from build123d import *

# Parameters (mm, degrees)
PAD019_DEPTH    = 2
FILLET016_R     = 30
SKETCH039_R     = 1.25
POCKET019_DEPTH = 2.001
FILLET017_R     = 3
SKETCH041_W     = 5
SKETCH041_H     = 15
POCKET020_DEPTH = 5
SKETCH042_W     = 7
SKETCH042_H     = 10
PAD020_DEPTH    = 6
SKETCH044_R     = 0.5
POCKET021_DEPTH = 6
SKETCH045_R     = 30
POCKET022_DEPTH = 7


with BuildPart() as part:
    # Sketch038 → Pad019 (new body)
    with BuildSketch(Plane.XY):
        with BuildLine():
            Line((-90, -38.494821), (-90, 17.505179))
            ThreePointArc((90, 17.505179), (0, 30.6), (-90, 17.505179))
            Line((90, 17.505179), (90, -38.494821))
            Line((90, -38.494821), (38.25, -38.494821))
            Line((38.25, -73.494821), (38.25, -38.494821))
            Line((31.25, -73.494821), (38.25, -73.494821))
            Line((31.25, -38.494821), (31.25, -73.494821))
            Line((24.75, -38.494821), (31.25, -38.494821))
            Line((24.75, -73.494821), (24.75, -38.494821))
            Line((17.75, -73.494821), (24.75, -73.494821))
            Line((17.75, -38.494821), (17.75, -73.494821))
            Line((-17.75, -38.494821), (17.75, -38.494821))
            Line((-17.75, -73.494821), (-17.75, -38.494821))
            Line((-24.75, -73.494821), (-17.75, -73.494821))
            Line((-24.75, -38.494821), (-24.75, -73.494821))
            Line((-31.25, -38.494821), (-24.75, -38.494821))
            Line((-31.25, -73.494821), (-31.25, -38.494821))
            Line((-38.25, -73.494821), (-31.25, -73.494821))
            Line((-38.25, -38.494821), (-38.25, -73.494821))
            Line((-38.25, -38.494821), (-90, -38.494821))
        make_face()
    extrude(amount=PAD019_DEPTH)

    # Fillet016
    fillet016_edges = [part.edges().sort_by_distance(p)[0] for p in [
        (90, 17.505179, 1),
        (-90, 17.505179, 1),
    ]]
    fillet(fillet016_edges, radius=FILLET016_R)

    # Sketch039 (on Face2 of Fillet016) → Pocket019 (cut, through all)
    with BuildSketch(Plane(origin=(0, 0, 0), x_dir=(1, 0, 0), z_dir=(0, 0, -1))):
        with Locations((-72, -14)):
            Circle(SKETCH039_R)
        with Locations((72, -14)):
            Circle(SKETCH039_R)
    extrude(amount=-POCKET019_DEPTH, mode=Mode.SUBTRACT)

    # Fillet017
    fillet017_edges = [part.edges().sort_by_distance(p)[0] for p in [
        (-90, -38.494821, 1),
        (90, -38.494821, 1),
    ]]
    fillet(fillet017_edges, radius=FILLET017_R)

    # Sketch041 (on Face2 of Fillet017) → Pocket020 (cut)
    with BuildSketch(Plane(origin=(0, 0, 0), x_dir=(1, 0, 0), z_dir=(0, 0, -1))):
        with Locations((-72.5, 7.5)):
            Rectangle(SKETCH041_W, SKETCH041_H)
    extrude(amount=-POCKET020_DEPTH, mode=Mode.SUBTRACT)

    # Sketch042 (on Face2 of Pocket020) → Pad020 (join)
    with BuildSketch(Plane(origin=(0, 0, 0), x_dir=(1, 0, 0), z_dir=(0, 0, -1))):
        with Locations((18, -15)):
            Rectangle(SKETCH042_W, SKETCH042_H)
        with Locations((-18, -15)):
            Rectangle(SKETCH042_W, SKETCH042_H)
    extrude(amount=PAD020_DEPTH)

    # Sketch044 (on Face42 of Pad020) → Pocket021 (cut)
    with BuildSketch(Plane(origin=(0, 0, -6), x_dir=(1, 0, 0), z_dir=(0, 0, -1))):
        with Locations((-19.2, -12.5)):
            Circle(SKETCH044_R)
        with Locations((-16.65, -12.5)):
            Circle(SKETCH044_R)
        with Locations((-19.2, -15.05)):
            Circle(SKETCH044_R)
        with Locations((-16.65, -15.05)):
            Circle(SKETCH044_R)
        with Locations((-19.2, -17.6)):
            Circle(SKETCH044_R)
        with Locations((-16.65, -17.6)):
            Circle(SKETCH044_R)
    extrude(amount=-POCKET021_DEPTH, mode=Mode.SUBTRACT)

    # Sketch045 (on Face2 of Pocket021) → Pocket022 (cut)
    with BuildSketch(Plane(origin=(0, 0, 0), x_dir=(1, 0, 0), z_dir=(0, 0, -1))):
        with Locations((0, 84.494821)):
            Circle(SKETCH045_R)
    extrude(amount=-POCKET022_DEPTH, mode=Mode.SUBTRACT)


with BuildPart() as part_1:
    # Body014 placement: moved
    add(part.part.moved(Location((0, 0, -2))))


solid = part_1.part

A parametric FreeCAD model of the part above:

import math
import FreeCAD as App
import Part
import Sketcher

V = App.Vector


def edges_at(feature, points):
    """Names of the edges that pass closest to the given points."""
    edges = feature.Shape.Edges
    near = lambda p: min(range(len(edges)), key=lambda i: edges[i].distToShape(Part.Vertex(*p))[0])
    return sorted({f"Edge{near(p) + 1}" for p in points})

doc = App.newDocument("Part")
params = doc.addObject("Spreadsheet::Sheet", "Params")
for row, (alias, value) in enumerate([
    ("sketch1_width", "7 mm"),
    ("sketch1_height", "56 mm"),
    ("sketch1_height2", "35 mm"),
    ("sketch1_width2", "6.5 mm"),
    ("sketch1_width3", "35.5 mm"),
    ("pad1_length", "2 mm"),
    ("fillet_radius", "30 mm"),
    ("sketch2_diameter", "2.5 mm"),
    ("fillet2_radius", "3 mm"),
    ("sketch3_width", "5 mm"),
    ("sketch3_height", "15 mm"),
    ("pocket2_length", "5 mm"),
    ("sketch4_width", "7 mm"),
    ("sketch4_height", "10 mm"),
    ("pad2_length", "6 mm"),
    ("sketch5_diameter", "1 mm"),
    ("pocket3_length", "6 mm"),
    ("sketch6_diameter", "60 mm"),
    ("pocket4_length", "7 mm"),
], start=1):
    params.set(f"A{row}", alias)
    params.set(f"B{row}", "=" + value)
    params.setAlias(f"B{row}", alias)

body = doc.addObject("PartDesign::Body", "Body")

sketch1 = doc.addObject("Sketcher::SketchObject", "Sketch")
body.addObject(sketch1)
sketch1.AttachmentSupport = (doc.XY_Plane, [""])
sketch1.MapMode = "FlatFace"
sketch1.addGeometry([
    Part.LineSegment(V(-90, 18, 0), V(-90, -38, 0)),
    Part.LineSegment(V(-90, -38, 0), V(-38, -38, 0)),
    Part.LineSegment(V(-38, -38, 0), V(-38, -73, 0)),
    Part.LineSegment(V(-38, -73, 0), V(-31, -73, 0)),
    Part.LineSegment(V(-31, -73, 0), V(-31, -38, 0)),
    Part.LineSegment(V(-31, -38, 0), V(-25, -38, 0)),
    Part.LineSegment(V(-25, -38, 0), V(-25, -73, 0)),
    Part.LineSegment(V(-25, -73, 0), V(-18, -73, 0)),
    Part.LineSegment(V(-18, -73, 0), V(-18, -38, 0)),
    Part.LineSegment(V(-18, -38, 0), V(18, -38, 0)),
    Part.LineSegment(V(18, -38, 0), V(18, -73, 0)),
    Part.LineSegment(V(18, -73, 0), V(25, -73, 0)),
    Part.LineSegment(V(25, -73, 0), V(25, -38, 0)),
    Part.LineSegment(V(25, -38, 0), V(31, -38, 0)),
    Part.LineSegment(V(31, -38, 0), V(31, -73, 0)),
    Part.LineSegment(V(31, -73, 0), V(38, -73, 0)),
    Part.LineSegment(V(38, -73, 0), V(38, -38, 0)),
    Part.LineSegment(V(38, -38, 0), V(90, -38, 0)),
    Part.LineSegment(V(90, -38, 0), V(90, 18, 0)),
    Part.ArcOfCircle(Part.Circle(V(0, -285, 0), V(0, 0, 1), 316), math.radians(73), math.radians(107)),
], False)
sketch1.addConstraint([
    Sketcher.Constraint("Coincident", 0, 2, 1, 1),
    Sketcher.Constraint("Coincident", 1, 2, 2, 1),
    Sketcher.Constraint("Coincident", 2, 2, 3, 1),
    Sketcher.Constraint("Coincident", 3, 2, 4, 1),
    Sketcher.Constraint("Coincident", 4, 2, 5, 1),
    Sketcher.Constraint("Coincident", 5, 2, 6, 1),
    Sketcher.Constraint("Coincident", 6, 2, 7, 1),
    Sketcher.Constraint("Coincident", 7, 2, 8, 1),
    Sketcher.Constraint("Coincident", 8, 2, 9, 1),
    Sketcher.Constraint("Coincident", 9, 2, 10, 1),
    Sketcher.Constraint("Coincident", 10, 2, 11, 1),
    Sketcher.Constraint("Coincident", 11, 2, 12, 1),
    Sketcher.Constraint("Coincident", 12, 2, 13, 1),
    Sketcher.Constraint("Coincident", 13, 2, 14, 1),
    Sketcher.Constraint("Coincident", 14, 2, 15, 1),
    Sketcher.Constraint("Coincident", 15, 2, 16, 1),
    Sketcher.Constraint("Coincident", 16, 2, 17, 1),
    Sketcher.Constraint("Coincident", 17, 2, 18, 1),
    Sketcher.Constraint("Coincident", 18, 2, 19, 1),
    Sketcher.Constraint("Coincident", 19, 2, 0, 1),
    Sketcher.Constraint("Vertical", 0),
    Sketcher.Constraint("Horizontal", 1),
    Sketcher.Constraint("Vertical", 2),
    Sketcher.Constraint("Horizontal", 3),
    Sketcher.Constraint("Vertical", 4),
    Sketcher.Constraint("Horizontal", 5),
    Sketcher.Constraint("Vertical", 6),
    Sketcher.Constraint("Horizontal", 7),
    Sketcher.Constraint("Vertical", 8),
    Sketcher.Constraint("Horizontal", 9),
    Sketcher.Constraint("Vertical", 10),
    Sketcher.Constraint("Horizontal", 11),
    Sketcher.Constraint("Vertical", 12),
    Sketcher.Constraint("Horizontal", 13),
    Sketcher.Constraint("Vertical", 14),
    Sketcher.Constraint("Horizontal", 15),
    Sketcher.Constraint("Vertical", 16),
    Sketcher.Constraint("Horizontal", 17),
    Sketcher.Constraint("Vertical", 18),
    Sketcher.Constraint("Symmetric", 7, 2, 10, 2, -2),
    Sketcher.Constraint("Symmetric", 5, 2, 12, 2, -2),
    Sketcher.Constraint("Symmetric", 3, 2, 14, 2, -2),
    Sketcher.Constraint("Symmetric", 1, 2, 16, 2, -2),
    Sketcher.Constraint("Symmetric", 18, 2, 19, 2, -2),
    Sketcher.Constraint("Horizontal", 1, 2, 4, 2),
    Sketcher.Constraint("Horizontal", 3, 2, 6, 2),
    Sketcher.Constraint("Horizontal", 5, 2, 8, 2),
    Sketcher.Constraint("Equal", 3, 7),
    Sketcher.Constraint("DistanceX", 3, 1, 3, 2, 7.0),
    Sketcher.Constraint("DistanceY", 0, 2, 0, 1, 56.0),
    Sketcher.Constraint("DistanceY", 2, 2, 2, 1, 35.0),
    Sketcher.Constraint("DistanceX", 5, 1, 5, 2, 6.5),
    Sketcher.Constraint("DistanceX", 9, 1, 9, 2, 35.5),
    Sketcher.Constraint("DistanceX", 0, 2, -1, 1, 90.0),
    Sketcher.Constraint("Radius", 19, 315.829989),
    Sketcher.Constraint("DistanceY", 19, 3, -1, 1, 285.229989),
])
sketch1.setExpression("Constraints[48]", "Params.sketch1_width")
sketch1.setExpression("Constraints[49]", "Params.sketch1_height")
sketch1.setExpression("Constraints[50]", "Params.sketch1_height2")
sketch1.setExpression("Constraints[51]", "Params.sketch1_width2")
sketch1.setExpression("Constraints[52]", "Params.sketch1_width3")
pad1 = doc.addObject("PartDesign::Pad", "Pad")
body.addObject(pad1)
pad1.Profile = sketch1
pad1.setExpression("Length", "Params.pad1_length")
doc.recompute()

fillet = doc.addObject("PartDesign::Fillet", "Fillet")
body.addObject(fillet)
fillet.Base = (pad1, edges_at(pad1, [(90, 17.505, 1), (-90, 17.505, 1)]))
fillet.setExpression("Radius", "Params.fillet_radius")

sketch2 = doc.addObject("Sketcher::SketchObject", "Sketch001")
body.addObject(sketch2)
sketch2.AttachmentSupport = (doc.XY_Plane, [""])
sketch2.MapMode = "FlatFace"
sketch2.addGeometry([
    Part.Circle(V(-72, 14, 0), V(0, 0, 1), 1.2),
    Part.Circle(V(72, 14, 0), V(0, 0, 1), 1.2),
], False)
sketch2.addConstraint([
    Sketcher.Constraint("Equal", 0, 1),
    Sketcher.Constraint("Symmetric", 0, 3, 1, 3, -2),
    Sketcher.Constraint("Diameter", 0, 2.5),
    Sketcher.Constraint("DistanceX", 0, 3, -1, 1, 72.0),
    Sketcher.Constraint("DistanceY", -1, 1, 0, 3, 14.0),
])
sketch2.setExpression("Constraints[2]", "Params.sketch2_diameter")
pocket1 = doc.addObject("PartDesign::Pocket", "Pocket")
body.addObject(pocket1)
pocket1.Profile = sketch2
pocket1.Type = "ThroughAll"
pocket1.Reversed = True
doc.recompute()

fillet2 = doc.addObject("PartDesign::Fillet", "Fillet001")
body.addObject(fillet2)
fillet2.Base = (pocket1, edges_at(pocket1, [(-90, -38.495, 1), (90, -38.495, 1)]))
fillet2.setExpression("Radius", "Params.fillet2_radius")

sketch3 = doc.addObject("Sketcher::SketchObject", "Sketch002")
body.addObject(sketch3)
sketch3.AttachmentSupport = (doc.XY_Plane, [""])
sketch3.MapMode = "FlatFace"
sketch3.addGeometry([
    Part.LineSegment(V(-75, -15, 0), V(-75, 0, 0)),
    Part.LineSegment(V(-75, 0, 0), V(-70, 0, 0)),
    Part.LineSegment(V(-70, 0, 0), V(-70, -15, 0)),
    Part.LineSegment(V(-70, -15, 0), V(-75, -15, 0)),
], False)
sketch3.addConstraint([
    Sketcher.Constraint("Coincident", 0, 2, 1, 1),
    Sketcher.Constraint("Coincident", 1, 2, 2, 1),
    Sketcher.Constraint("Coincident", 2, 2, 3, 1),
    Sketcher.Constraint("Coincident", 3, 2, 0, 1),
    Sketcher.Constraint("Vertical", 0),
    Sketcher.Constraint("Horizontal", 1),
    Sketcher.Constraint("Vertical", 2),
    Sketcher.Constraint("Horizontal", 3),
    Sketcher.Constraint("PointOnObject", 0, 2, -1),
    Sketcher.Constraint("DistanceX", 1, 1, 1, 2, 5.0),
    Sketcher.Constraint("DistanceY", 0, 1, 0, 2, 15.0),
    Sketcher.Constraint("DistanceX", 0, 2, -1, 1, 75.0),
])
sketch3.setExpression("Constraints[9]", "Params.sketch3_width")
sketch3.setExpression("Constraints[10]", "Params.sketch3_height")
pocket2 = doc.addObject("PartDesign::Pocket", "Pocket001")
body.addObject(pocket2)
pocket2.Profile = sketch3
pocket2.setExpression("Length", "Params.pocket2_length")
pocket2.Reversed = True

sketch4 = doc.addObject("Sketcher::SketchObject", "Sketch003")
body.addObject(sketch4)
sketch4.AttachmentSupport = (doc.XY_Plane, [""])
sketch4.MapMode = "FlatFace"
sketch4.addGeometry([
    Part.LineSegment(V(14, 10, 0), V(14, 20, 0)),
    Part.LineSegment(V(14, 20, 0), V(22, 20, 0)),
    Part.LineSegment(V(22, 20, 0), V(22, 10, 0)),
    Part.LineSegment(V(22, 10, 0), V(14, 10, 0)),
    Part.LineSegment(V(-22, 10, 0), V(-22, 20, 0)),
    Part.LineSegment(V(-22, 20, 0), V(-14, 20, 0)),
    Part.LineSegment(V(-14, 20, 0), V(-14, 10, 0)),
    Part.LineSegment(V(-14, 10, 0), V(-22, 10, 0)),
], False)
sketch4.addConstraint([
    Sketcher.Constraint("Coincident", 0, 2, 1, 1),
    Sketcher.Constraint("Coincident", 1, 2, 2, 1),
    Sketcher.Constraint("Coincident", 2, 2, 3, 1),
    Sketcher.Constraint("Coincident", 3, 2, 0, 1),
    Sketcher.Constraint("Coincident", 4, 2, 5, 1),
    Sketcher.Constraint("Coincident", 5, 2, 6, 1),
    Sketcher.Constraint("Coincident", 6, 2, 7, 1),
    Sketcher.Constraint("Coincident", 7, 2, 4, 1),
    Sketcher.Constraint("Vertical", 0),
    Sketcher.Constraint("Horizontal", 1),
    Sketcher.Constraint("Vertical", 2),
    Sketcher.Constraint("Horizontal", 3),
    Sketcher.Constraint("Vertical", 4),
    Sketcher.Constraint("Horizontal", 5),
    Sketcher.Constraint("Vertical", 6),
    Sketcher.Constraint("Horizontal", 7),
    Sketcher.Constraint("Symmetric", 1, 2, 4, 2, -2),
    Sketcher.Constraint("Symmetric", 3, 2, 6, 2, -2),
    Sketcher.Constraint("DistanceX", 1, 1, 1, 2, 7.0),
    Sketcher.Constraint("DistanceY", 0, 1, 0, 2, 10.0),
    Sketcher.Constraint("DistanceY", -1, 1, 0, 2, 20.0),
    Sketcher.Constraint("DistanceX", 4, 2, 0, 2, 36.0),
])
sketch4.setExpression("Constraints[18]", "Params.sketch4_width")
sketch4.setExpression("Constraints[19]", "Params.sketch4_height")
pad2 = doc.addObject("PartDesign::Pad", "Pad001")
body.addObject(pad2)
pad2.Profile = sketch4
pad2.setExpression("Length", "Params.pad2_length")
pad2.Reversed = True

sketch5 = doc.addObject("Sketcher::SketchObject", "Sketch004")
body.addObject(sketch5)
sketch5.AttachmentSupport = (doc.XY_Plane, [""])
sketch5.MapMode = "FlatFace"
sketch5.AttachmentOffset = App.Placement(V(0, 0, -6), App.Rotation())
sketch5.addGeometry([
    Part.Circle(V(-19.2, 12.5, 0), V(0, 0, 1), 0.5),
    Part.Circle(V(-16.6, 12.5, 0), V(0, 0, 1), 0.5),
    Part.Circle(V(-19.2, 15.1, 0), V(0, 0, 1), 0.5),
    Part.Circle(V(-16.6, 15.1, 0), V(0, 0, 1), 0.5),
    Part.Circle(V(-19.2, 17.6, 0), V(0, 0, 1), 0.5),
    Part.Circle(V(-16.6, 17.6, 0), V(0, 0, 1), 0.5),
], False)
sketch5.addConstraint([
    Sketcher.Constraint("Equal", 0, 1),
    Sketcher.Constraint("Equal", 1, 2),
    Sketcher.Constraint("Equal", 2, 3),
    Sketcher.Constraint("Equal", 3, 4),
    Sketcher.Constraint("Equal", 4, 5),
    Sketcher.Constraint("Horizontal", 0, 3, 1, 3),
    Sketcher.Constraint("Horizontal", 2, 3, 3, 3),
    Sketcher.Constraint("Horizontal", 4, 3, 5, 3),
    Sketcher.Constraint("Vertical", 0, 3, 2, 3),
    Sketcher.Constraint("Vertical", 1, 3, 3, 3),
    Sketcher.Constraint("Vertical", 2, 3, 4, 3),
    Sketcher.Constraint("Vertical", 3, 3, 5, 3),
    Sketcher.Constraint("Diameter", 0, 1.0),
    Sketcher.Constraint("DistanceX", 0, 3, -1, 1, 19.2),
    Sketcher.Constraint("DistanceY", -1, 1, 0, 3, 12.5),
    Sketcher.Constraint("DistanceY", -1, 1, 4, 3, 17.6),
    Sketcher.Constraint("DistanceX", 1, 3, -1, 1, 16.65),
    Sketcher.Constraint("DistanceY", -1, 1, 2, 3, 15.05),
])
sketch5.setExpression("Constraints[12]", "Params.sketch5_diameter")
pocket3 = doc.addObject("PartDesign::Pocket", "Pocket002")
body.addObject(pocket3)
pocket3.Profile = sketch5
pocket3.setExpression("Length", "Params.pocket3_length")
pocket3.Reversed = True

sketch6 = doc.addObject("Sketcher::SketchObject", "Sketch005")
body.addObject(sketch6)
sketch6.AttachmentSupport = (doc.XY_Plane, [""])
sketch6.MapMode = "FlatFace"
sketch6.addGeometry(Part.Circle(V(0, -84, 0), V(0, 0, 1), 30), False)
sketch6.addConstraint([
    Sketcher.Constraint("PointOnObject", 0, 3, -2),
    Sketcher.Constraint("Diameter", 0, 60.0),
    Sketcher.Constraint("DistanceY", 0, 3, -1, 1, 84.494821),
])
sketch6.setExpression("Constraints[1]", "Params.sketch6_diameter")
pocket4 = doc.addObject("PartDesign::Pocket", "Pocket003")
body.addObject(pocket4)
pocket4.Profile = sketch6
pocket4.setExpression("Length", "Params.pocket4_length")
pocket4.Reversed = True
body2 = doc.addObject("PartDesign::Body", "Body001")
doc.recompute()

body.Placement = App.Placement(V(0, 0, -2), App.Rotation(V(0, 0, 1), 0))
boolean = doc.addObject("PartDesign::Boolean", "Boolean")
body2.addObject(boolean)
boolean.Type = "Fuse"
boolean.addObjects([body])

doc.recompute()
